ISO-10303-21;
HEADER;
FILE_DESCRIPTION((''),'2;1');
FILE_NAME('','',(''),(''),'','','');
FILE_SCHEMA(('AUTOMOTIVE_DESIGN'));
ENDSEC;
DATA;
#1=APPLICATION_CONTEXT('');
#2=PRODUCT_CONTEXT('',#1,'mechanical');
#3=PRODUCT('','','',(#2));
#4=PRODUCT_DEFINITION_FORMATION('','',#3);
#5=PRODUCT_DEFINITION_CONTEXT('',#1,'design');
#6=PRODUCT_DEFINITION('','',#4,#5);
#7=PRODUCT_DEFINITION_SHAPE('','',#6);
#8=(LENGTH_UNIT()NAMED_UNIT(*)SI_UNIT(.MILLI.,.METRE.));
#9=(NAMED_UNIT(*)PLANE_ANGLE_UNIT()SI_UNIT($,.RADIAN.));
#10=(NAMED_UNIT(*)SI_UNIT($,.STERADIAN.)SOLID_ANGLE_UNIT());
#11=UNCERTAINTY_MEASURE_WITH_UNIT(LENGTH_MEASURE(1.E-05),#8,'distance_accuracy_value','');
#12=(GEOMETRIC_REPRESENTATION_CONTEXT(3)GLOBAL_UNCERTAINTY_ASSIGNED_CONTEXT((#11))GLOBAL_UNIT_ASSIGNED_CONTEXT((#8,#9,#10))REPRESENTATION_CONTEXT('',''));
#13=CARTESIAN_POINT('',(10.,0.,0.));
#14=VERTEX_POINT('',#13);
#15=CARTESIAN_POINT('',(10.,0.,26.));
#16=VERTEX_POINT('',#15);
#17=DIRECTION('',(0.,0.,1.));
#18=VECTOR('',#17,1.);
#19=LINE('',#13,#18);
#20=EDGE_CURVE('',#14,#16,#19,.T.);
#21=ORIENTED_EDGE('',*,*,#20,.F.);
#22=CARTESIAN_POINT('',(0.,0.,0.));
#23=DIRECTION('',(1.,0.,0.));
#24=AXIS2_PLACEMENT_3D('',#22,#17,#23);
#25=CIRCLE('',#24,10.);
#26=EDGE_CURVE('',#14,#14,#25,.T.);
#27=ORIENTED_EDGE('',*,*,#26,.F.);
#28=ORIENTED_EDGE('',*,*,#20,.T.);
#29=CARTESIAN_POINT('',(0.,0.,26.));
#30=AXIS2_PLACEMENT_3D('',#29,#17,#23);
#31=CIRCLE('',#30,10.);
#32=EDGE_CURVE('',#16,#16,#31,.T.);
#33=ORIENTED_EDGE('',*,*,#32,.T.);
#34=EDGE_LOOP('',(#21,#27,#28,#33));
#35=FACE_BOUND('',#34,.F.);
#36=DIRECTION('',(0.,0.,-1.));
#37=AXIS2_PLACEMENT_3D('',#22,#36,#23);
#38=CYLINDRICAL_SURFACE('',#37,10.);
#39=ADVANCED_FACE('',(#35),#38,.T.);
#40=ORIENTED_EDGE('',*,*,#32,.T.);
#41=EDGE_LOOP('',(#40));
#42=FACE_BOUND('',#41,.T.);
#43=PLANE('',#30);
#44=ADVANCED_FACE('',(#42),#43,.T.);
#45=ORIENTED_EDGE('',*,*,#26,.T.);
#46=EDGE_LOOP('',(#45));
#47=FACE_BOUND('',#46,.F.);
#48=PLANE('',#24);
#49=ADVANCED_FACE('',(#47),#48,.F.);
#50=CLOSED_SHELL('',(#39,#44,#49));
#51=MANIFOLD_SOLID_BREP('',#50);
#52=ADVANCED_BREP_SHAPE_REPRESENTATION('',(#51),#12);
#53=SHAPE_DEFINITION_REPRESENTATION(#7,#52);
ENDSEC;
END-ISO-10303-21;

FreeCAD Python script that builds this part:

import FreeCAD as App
import Part
import Sketcher
from FreeCAD import Vector

doc = App.newDocument("Part")
params = doc.addObject("Spreadsheet::Sheet", "Params")
for row, (alias, value) in enumerate([
    ("sketch1_diameter", "20 mm"),
    ("pad1_length", "26 mm"),
], start=1):
    params.set(f"A{row}", alias)
    params.set(f"B{row}", "=" + value)
    params.setAlias(f"B{row}", alias)

body = doc.addObject("PartDesign::Body", "Body")

sketch1 = body.newObject("Sketcher::SketchObject", "Sketch")
sketch1.AttachmentSupport = (doc.getObject("XY_Plane"), [""])
sketch1.MapMode = "FlatFace"
sketch1.addGeometry(Part.Circle(Vector(0, 0, 0), Vector(0, 0, 1), 10), False)
sketch1.addConstraint([
    Sketcher.Constraint("Coincident", 0, 3, -1, 1),
    Sketcher.Constraint("Diameter", 0, 20.0),
])
sketch1.setExpression("Constraints[1]", "Params.sketch1_diameter")
pad1 = body.newObject("PartDesign::Pad", "Pad")
pad1.Profile = sketch1
pad1.setExpression("Length", "Params.pad1_length")

doc.recompute()
